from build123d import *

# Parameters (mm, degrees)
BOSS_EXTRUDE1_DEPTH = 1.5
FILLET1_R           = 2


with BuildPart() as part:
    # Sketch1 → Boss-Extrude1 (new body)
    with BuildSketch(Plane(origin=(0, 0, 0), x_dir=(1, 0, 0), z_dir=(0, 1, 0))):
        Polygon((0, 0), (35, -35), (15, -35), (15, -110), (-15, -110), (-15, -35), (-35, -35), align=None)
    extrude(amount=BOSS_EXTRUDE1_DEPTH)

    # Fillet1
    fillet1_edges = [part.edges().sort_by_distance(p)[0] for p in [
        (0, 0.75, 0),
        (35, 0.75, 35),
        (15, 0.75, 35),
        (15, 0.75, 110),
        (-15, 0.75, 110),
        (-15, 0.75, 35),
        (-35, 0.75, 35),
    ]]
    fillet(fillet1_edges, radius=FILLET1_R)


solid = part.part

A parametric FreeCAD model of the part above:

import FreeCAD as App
import Part
import Sketcher
from FreeCAD import Vector
Q = App.Units.Quantity


def edges_at(feature, points):
    """Names of the edges that pass closest to the given points."""
    edges = feature.Shape.Edges
    near = lambda p: min(range(len(edges)), key=lambda i: edges[i].distToShape(Part.Vertex(*p))[0])
    return sorted({f"Edge{near(p) + 1}" for p in points})


def add_polygon(sketch, points):
    """Adds a closed chain of lines whose ends are joined by coincident constraints."""
    first, n = sketch.GeometryCount, len(points)
    for a, b in zip(points, points[1:] + points[:1]):
        sketch.addGeometry(Part.LineSegment(App.Vector(*a, 0), App.Vector(*b, 0)), False)
    for i in range(n):
        sketch.addConstraint(Sketcher.Constraint("Coincident", first + i, 2, first + (i + 1) % n, 1))

doc = App.newDocument("Part")
body = doc.addObject("PartDesign::Body", "Body")

# Sketch on XZ plane
sketch1 = body.newObject("Sketcher::SketchObject", "Sketch")
sketch1.AttachmentSupport = (doc.getObject("XZ_Plane"), [""])
sketch1.MapMode = "FlatFace"
add_polygon(sketch1, [(35, 35), (0, 0), (-35, 35), (-15, 35), (-15, 110), (15, 110), (15, 35)])  # lines 0-6
sketch1.addConstraint([
    Sketcher.Constraint("Horizontal", 2),
    Sketcher.Constraint("Vertical", 3),
    Sketcher.Constraint("Horizontal", 4),
    Sketcher.Constraint("Vertical", 5),
    Sketcher.Constraint("Horizontal", 6),
    Sketcher.Constraint("Coincident", 0, 2, -1, 1),
    Sketcher.Constraint("Symmetric", 2, 2, 5, 2, -2),
    Sketcher.Constraint("Perpendicular", 0, 1),
    Sketcher.Constraint("Equal", 2, 6),
    Sketcher.Constraint("DistanceX", 2, 1, 2, 2, Q("20 mm")),
    Sketcher.Constraint("DistanceX", 4, 1, 4, 2, Q("30 mm")),
    Sketcher.Constraint("DistanceY", 3, 1, 3, 2, Q("75 mm")),
])
pad1 = body.newObject("PartDesign::Pad", "Pad")
pad1.Profile = sketch1
pad1.Length = 1.5
pad1.Reversed = True
doc.recompute()

fillet = body.newObject("PartDesign::Fillet", "Fillet")
fillet.Base = (pad1, edges_at(pad1, [
    (0, 0.75, 0),
    (35, 0.75, 35),
    (15, 0.75, 35),
    (15, 0.75, 110),
    (-15, 0.75, 110),
    (-15, 0.75, 35),
    (-35, 0.75, 35),
]))
fillet.Radius = 2

doc.recompute()
